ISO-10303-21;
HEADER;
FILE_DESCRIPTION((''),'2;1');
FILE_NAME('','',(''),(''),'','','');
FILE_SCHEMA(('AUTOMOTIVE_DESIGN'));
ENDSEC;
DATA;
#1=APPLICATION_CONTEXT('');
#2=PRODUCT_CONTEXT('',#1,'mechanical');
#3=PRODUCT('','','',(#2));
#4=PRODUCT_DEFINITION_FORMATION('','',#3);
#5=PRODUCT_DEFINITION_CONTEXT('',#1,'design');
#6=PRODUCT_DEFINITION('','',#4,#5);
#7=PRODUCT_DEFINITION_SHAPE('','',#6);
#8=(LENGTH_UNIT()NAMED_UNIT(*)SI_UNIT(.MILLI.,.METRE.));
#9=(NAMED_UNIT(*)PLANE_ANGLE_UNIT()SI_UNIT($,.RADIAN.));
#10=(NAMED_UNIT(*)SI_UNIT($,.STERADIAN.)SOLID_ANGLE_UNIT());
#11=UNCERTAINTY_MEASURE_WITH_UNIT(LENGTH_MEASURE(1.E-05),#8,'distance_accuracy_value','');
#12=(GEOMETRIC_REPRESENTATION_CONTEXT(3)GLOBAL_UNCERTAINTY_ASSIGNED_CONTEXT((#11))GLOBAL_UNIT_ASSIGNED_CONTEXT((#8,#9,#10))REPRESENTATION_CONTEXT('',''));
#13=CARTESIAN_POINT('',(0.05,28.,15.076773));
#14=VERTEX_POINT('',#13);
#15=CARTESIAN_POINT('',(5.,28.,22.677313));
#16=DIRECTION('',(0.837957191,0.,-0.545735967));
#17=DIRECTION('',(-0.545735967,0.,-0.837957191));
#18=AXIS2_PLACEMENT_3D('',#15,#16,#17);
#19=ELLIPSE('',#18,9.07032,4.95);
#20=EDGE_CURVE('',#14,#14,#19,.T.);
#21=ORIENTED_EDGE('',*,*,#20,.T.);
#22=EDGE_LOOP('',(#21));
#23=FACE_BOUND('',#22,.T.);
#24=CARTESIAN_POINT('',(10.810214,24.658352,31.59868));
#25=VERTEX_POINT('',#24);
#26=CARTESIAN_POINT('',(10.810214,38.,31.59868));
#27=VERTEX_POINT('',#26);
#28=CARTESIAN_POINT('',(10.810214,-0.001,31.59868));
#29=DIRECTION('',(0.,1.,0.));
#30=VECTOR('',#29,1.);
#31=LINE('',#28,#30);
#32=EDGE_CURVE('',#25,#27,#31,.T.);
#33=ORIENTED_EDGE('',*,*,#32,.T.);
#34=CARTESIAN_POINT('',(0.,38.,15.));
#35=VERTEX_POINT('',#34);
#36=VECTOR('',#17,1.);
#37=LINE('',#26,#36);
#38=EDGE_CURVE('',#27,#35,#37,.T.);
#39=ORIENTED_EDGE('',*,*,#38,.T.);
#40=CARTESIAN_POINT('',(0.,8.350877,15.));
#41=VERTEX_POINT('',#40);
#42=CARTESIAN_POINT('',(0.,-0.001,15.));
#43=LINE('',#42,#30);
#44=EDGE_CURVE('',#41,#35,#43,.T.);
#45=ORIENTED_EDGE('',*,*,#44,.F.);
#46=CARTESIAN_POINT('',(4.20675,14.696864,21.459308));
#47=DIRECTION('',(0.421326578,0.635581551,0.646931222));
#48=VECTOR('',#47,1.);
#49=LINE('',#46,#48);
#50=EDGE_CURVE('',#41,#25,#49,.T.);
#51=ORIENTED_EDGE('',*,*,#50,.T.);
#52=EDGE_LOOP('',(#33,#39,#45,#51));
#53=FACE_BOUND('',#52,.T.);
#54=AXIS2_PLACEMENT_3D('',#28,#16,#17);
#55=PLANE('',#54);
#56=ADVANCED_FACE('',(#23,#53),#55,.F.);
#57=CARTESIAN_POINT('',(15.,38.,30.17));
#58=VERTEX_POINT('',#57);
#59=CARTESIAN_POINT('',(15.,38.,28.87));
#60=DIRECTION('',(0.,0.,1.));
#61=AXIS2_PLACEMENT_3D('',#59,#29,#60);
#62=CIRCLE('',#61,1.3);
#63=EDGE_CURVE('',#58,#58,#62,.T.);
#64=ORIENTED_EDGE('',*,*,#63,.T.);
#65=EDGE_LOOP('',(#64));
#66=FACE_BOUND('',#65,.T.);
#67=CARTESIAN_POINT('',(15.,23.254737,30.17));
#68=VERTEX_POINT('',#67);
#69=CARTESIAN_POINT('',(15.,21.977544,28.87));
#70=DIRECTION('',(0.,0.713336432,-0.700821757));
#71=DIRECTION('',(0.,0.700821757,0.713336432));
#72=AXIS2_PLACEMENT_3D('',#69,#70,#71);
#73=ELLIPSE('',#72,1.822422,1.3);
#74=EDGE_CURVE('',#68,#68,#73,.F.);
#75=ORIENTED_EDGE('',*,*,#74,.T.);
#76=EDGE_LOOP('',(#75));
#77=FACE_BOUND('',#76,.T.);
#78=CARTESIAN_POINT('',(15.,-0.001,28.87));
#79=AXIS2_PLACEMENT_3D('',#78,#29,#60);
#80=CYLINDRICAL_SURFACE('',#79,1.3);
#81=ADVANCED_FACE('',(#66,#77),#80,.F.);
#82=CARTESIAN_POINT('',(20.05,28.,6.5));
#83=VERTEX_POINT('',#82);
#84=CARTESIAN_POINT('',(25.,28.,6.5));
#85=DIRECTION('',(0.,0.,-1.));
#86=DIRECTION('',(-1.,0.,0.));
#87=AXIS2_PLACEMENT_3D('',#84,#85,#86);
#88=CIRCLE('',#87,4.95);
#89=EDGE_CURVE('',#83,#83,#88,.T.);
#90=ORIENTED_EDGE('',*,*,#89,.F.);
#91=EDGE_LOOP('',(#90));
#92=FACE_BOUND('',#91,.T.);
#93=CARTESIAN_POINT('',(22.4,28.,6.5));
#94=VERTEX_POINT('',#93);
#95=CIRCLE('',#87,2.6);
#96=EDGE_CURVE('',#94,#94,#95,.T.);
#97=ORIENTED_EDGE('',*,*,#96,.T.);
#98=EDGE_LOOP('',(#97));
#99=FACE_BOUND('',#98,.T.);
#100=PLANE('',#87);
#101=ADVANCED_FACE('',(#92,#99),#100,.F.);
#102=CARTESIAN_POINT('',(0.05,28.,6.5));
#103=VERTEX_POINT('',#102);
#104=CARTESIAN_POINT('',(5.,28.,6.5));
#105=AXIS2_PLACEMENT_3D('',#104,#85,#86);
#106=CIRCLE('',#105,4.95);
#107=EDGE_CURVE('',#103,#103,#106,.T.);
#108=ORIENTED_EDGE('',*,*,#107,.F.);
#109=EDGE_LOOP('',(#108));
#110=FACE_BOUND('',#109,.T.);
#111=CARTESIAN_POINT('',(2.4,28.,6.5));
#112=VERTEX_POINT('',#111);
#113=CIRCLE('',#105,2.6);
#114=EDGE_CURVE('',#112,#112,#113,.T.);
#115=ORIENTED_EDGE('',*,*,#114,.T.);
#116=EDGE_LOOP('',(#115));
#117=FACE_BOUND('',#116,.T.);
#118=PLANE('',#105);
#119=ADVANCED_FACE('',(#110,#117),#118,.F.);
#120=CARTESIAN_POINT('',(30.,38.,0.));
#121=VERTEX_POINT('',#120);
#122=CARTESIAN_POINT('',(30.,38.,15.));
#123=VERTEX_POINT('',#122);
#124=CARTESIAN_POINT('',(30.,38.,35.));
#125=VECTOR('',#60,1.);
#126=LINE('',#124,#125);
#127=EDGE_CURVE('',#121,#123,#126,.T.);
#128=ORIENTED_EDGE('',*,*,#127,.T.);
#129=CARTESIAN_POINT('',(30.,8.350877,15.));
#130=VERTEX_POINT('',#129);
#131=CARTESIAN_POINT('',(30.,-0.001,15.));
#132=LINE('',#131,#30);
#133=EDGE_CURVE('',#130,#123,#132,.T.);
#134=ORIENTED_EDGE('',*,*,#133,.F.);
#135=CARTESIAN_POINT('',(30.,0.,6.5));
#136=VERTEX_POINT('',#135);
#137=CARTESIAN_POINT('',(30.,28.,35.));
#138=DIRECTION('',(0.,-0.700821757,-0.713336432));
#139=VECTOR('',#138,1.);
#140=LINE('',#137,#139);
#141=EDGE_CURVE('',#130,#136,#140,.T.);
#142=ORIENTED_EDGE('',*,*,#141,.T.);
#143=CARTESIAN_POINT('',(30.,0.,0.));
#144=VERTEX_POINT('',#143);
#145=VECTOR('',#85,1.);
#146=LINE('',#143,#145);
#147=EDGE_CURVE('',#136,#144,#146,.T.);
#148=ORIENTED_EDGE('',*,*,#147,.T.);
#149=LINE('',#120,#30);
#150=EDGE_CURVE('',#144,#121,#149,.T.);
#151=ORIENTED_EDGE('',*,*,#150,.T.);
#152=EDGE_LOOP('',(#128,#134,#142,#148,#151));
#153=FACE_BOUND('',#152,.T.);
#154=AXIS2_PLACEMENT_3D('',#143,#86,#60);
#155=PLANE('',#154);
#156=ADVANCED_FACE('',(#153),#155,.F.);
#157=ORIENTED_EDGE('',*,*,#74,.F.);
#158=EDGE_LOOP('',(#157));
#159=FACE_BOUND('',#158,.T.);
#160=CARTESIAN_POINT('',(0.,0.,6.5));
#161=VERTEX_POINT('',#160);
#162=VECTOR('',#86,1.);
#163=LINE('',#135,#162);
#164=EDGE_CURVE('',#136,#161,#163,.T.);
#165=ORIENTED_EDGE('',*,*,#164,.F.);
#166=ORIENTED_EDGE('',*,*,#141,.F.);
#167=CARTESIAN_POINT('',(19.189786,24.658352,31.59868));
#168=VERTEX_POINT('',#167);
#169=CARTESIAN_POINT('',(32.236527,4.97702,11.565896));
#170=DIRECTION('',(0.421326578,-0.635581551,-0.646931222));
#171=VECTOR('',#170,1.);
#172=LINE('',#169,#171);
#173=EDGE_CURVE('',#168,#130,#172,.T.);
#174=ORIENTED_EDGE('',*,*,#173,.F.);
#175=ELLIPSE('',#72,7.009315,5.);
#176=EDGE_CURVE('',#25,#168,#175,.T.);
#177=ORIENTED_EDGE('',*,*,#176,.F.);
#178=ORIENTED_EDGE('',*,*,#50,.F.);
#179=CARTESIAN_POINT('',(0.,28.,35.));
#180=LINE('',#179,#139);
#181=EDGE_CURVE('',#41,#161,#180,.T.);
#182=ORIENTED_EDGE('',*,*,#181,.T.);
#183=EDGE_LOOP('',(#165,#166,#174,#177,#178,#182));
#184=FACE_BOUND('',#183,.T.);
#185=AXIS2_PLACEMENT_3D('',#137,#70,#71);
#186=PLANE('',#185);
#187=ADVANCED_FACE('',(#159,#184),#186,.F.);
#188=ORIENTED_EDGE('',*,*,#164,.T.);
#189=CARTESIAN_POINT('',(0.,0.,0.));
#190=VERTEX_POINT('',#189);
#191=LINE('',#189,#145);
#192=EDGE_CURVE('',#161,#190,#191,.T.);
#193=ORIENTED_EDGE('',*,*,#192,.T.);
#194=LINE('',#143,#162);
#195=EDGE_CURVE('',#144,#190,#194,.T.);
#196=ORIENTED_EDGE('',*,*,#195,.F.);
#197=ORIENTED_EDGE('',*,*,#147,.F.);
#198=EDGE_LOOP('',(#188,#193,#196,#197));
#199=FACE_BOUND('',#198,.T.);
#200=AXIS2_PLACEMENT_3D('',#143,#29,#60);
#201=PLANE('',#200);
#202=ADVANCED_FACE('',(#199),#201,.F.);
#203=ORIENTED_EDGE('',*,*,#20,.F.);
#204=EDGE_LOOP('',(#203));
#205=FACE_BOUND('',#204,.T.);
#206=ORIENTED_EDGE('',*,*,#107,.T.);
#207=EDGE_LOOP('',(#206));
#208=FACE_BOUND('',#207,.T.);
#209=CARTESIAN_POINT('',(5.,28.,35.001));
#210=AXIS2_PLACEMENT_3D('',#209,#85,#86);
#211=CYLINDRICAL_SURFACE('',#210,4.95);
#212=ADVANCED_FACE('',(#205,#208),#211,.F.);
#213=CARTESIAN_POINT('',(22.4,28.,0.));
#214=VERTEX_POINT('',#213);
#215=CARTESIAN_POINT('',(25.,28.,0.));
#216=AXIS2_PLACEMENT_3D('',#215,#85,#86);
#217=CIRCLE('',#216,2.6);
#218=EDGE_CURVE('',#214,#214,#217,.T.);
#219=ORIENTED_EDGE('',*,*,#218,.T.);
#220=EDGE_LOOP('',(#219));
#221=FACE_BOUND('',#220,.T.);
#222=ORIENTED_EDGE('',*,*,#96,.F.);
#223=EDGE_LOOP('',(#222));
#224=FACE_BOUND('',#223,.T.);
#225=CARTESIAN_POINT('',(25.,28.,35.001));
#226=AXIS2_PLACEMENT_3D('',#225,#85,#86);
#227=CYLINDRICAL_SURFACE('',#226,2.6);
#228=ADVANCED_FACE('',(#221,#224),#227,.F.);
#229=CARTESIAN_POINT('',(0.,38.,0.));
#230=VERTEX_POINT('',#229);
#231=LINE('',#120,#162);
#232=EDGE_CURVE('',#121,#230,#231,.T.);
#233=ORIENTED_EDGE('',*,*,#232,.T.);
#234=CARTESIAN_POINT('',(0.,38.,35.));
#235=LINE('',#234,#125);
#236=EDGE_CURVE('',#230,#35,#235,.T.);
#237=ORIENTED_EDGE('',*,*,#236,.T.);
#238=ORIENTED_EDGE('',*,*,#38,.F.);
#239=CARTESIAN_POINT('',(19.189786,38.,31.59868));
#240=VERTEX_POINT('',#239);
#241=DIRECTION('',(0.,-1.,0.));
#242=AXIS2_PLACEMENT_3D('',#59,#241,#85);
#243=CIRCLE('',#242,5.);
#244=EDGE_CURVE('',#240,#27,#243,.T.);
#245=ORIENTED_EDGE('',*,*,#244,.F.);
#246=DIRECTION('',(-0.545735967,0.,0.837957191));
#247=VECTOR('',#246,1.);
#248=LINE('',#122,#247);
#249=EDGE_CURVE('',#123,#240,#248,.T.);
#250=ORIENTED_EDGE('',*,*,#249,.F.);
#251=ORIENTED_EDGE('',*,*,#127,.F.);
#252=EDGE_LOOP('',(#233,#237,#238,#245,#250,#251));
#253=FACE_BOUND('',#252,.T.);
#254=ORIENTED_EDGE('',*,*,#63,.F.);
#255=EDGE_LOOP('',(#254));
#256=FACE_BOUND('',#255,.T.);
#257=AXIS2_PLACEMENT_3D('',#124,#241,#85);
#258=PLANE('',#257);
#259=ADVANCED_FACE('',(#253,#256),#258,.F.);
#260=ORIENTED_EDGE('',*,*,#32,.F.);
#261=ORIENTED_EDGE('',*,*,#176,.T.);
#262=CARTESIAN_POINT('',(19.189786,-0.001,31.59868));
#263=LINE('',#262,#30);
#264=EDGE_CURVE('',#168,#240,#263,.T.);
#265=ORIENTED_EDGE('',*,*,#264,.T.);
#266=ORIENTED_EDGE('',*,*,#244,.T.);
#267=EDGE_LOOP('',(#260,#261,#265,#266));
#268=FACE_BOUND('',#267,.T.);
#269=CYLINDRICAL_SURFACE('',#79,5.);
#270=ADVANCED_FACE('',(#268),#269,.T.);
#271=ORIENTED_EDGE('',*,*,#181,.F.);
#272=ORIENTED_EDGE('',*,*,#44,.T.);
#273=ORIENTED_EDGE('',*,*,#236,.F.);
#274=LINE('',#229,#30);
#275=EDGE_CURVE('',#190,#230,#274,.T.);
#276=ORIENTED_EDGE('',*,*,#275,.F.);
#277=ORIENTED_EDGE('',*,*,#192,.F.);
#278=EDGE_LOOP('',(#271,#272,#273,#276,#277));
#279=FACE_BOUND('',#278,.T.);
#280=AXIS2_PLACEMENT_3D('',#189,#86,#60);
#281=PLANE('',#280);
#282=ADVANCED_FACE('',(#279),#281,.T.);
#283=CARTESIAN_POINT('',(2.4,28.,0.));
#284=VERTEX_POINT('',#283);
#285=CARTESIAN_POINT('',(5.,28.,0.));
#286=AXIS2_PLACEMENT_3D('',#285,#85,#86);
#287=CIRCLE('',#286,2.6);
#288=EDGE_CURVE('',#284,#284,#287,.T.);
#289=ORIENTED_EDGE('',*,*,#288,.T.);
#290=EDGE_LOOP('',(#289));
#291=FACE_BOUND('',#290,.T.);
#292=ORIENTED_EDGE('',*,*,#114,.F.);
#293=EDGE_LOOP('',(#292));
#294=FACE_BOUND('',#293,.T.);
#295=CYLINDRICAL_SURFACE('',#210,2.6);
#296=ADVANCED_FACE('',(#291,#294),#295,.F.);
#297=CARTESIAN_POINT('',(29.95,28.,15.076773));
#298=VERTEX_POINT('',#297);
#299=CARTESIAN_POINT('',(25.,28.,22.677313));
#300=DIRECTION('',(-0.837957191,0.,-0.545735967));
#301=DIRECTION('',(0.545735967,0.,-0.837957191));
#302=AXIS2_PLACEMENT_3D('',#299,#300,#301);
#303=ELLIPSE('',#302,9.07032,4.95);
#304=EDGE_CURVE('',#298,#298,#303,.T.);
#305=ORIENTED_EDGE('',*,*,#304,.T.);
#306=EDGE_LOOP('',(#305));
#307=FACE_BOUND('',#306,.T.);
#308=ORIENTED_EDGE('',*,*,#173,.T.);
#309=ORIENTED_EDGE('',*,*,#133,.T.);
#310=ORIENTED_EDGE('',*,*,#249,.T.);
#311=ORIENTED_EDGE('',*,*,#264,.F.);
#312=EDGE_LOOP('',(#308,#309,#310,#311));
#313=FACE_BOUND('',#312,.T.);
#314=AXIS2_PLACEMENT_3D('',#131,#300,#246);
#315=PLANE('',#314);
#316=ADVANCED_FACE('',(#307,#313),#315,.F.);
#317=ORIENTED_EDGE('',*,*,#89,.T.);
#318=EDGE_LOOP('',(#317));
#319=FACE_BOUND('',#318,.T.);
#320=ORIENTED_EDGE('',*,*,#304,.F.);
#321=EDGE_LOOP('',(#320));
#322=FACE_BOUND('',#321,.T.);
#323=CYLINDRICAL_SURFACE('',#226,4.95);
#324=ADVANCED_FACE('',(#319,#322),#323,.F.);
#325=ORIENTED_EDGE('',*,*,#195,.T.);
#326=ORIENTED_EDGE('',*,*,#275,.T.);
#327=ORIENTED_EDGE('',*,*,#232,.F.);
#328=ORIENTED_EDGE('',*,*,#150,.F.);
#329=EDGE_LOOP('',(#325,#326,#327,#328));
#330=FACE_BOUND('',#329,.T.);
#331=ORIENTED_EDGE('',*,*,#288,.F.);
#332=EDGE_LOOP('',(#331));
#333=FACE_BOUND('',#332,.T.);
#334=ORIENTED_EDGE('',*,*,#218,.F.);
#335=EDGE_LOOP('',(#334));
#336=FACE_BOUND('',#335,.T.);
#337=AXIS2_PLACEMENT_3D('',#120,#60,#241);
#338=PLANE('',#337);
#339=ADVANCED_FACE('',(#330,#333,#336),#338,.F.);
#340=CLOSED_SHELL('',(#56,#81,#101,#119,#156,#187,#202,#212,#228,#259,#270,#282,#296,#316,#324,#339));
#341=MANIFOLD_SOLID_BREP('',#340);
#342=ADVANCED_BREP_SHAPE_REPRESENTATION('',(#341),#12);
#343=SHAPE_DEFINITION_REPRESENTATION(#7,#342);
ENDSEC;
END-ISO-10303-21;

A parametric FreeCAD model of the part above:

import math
import FreeCAD as App
import Part
import Sketcher
Q = App.Units.Quantity

doc = App.newDocument("Part")
params = doc.addObject("Spreadsheet::Sheet", "Params")
for row, (alias, value) in enumerate([
    ("sketch1_width", "38 mm"),
    ("sketch1_width2", "10 mm"),
    ("sketch1_height", "35 mm"),
    ("sketch1_height2", "6.5 mm"),
    ("pad1_length", "30 mm"),
    ("sketch2_diameter", "5.2 mm"),
    ("sketch3_diameter", "5.2 mm"),
    ("sketch4_diameter", "9.9 mm"),
    ("pocket3_length", "28.5 mm"),
    ("sketch5_diameter", "9.9 mm"),
    ("pocket4_length", "28.5 mm"),
    ("sketch6_diameter", "2.6 mm"),
    ("sketch7_radius", "5 mm"),
    ("sketch7_width", "30 mm"),
    ("sketch7_height", "20 mm"),
    ("pocket6_length", "29.649123 mm"),
], start=1):
    params.set(f"A{row}", alias)
    params.set(f"B{row}", "=" + value)
    params.setAlias(f"B{row}", alias)

body = doc.addObject("PartDesign::Body", "Body")

# Sketch on YZ plane
sketch1 = doc.addObject("Sketcher::SketchObject", "Sketch")
body.addObject(sketch1)
sketch1.AttachmentSupport = (doc.YZ_Plane, [""])
sketch1.MapMode = "FlatFace"
sketch1.addGeometry([
    Part.LineSegment(App.Vector(0, 6, 0), App.Vector(0, 0, 0)),  # 0
    Part.LineSegment(App.Vector(0, 0, 0), App.Vector(38, 0, 0)),  # 1
    Part.LineSegment(App.Vector(38, 0, 0), App.Vector(38, 35, 0)),  # 2
    Part.LineSegment(App.Vector(38, 35, 0), App.Vector(28, 35, 0)),  # 3
    Part.LineSegment(App.Vector(28, 35, 0), App.Vector(0, 6, 0)),  # 4
], False)
sketch1.addConstraint([
    Sketcher.Constraint("Coincident", 0, 2, 1, 1),
    Sketcher.Constraint("Coincident", 1, 2, 2, 1),
    Sketcher.Constraint("Coincident", 2, 2, 3, 1),
    Sketcher.Constraint("Coincident", 3, 2, 4, 1),
    Sketcher.Constraint("Coincident", 4, 2, 0, 1),
    Sketcher.Constraint("Vertical", 0),
    Sketcher.Constraint("Horizontal", 1),
    Sketcher.Constraint("Vertical", 2),
    Sketcher.Constraint("Horizontal", 3),
    Sketcher.Constraint("Coincident", 0, 2, -1, 1),
    Sketcher.Constraint("DistanceX", 1, 1, 1, 2, Q("38 mm")),
    Sketcher.Constraint("DistanceX", 3, 2, 3, 1, Q("10 mm")),
    Sketcher.Constraint("DistanceY", 2, 1, 2, 2, Q("35 mm")),
    Sketcher.Constraint("DistanceY", 0, 2, 0, 1, Q("6.5 mm")),
])
sketch1.setExpression("Constraints[10]", "Params.sketch1_width")
sketch1.setExpression("Constraints[11]", "Params.sketch1_width2")
sketch1.setExpression("Constraints[12]", "Params.sketch1_height")
sketch1.setExpression("Constraints[13]", "Params.sketch1_height2")
pad1 = doc.addObject("PartDesign::Pad", "Pad")
body.addObject(pad1)
pad1.Profile = sketch1
pad1.setExpression("Length", "Params.pad1_length")

# Sketch on XY plane
sketch2 = doc.addObject("Sketcher::SketchObject", "Sketch001")
body.addObject(sketch2)
sketch2.AttachmentSupport = (doc.XY_Plane, [""])
sketch2.MapMode = "FlatFace"
sketch2.addGeometry(Part.Circle(App.Vector(25, 28, 0), App.Vector(0, 0, 1), 2.6), False)
sketch2.addConstraint([
    Sketcher.Constraint("Diameter", 0, Q("5.2 mm")),
    Sketcher.Constraint("DistanceX", -1, 1, 0, 3, Q("25 mm")),
    Sketcher.Constraint("DistanceY", -1, 1, 0, 3, Q("28 mm")),
])
sketch2.setExpression("Constraints[0]", "Params.sketch2_diameter")
pocket1 = doc.addObject("PartDesign::Pocket", "Pocket")
body.addObject(pocket1)
pocket1.Profile = sketch2
pocket1.Type = "UpToFirst"
pocket1.Reversed = True

# Sketch on XY plane
sketch3 = doc.addObject("Sketcher::SketchObject", "Sketch002")
body.addObject(sketch3)
sketch3.AttachmentSupport = (doc.XY_Plane, [""])
sketch3.MapMode = "FlatFace"
sketch3.addGeometry(Part.Circle(App.Vector(5, 28, 0), App.Vector(0, 0, 1), 2.6), False)
sketch3.addConstraint([
    Sketcher.Constraint("Diameter", 0, Q("5.2 mm")),
    Sketcher.Constraint("DistanceX", -1, 1, 0, 3, Q("5 mm")),
    Sketcher.Constraint("DistanceY", -1, 1, 0, 3, Q("28 mm")),
])
sketch3.setExpression("Constraints[0]", "Params.sketch3_diameter")
pocket2 = doc.addObject("PartDesign::Pocket", "Pocket001")
body.addObject(pocket2)
pocket2.Profile = sketch3
pocket2.Type = "UpToFirst"
pocket2.Reversed = True

# Sketch on XY plane
sketch4 = doc.addObject("Sketcher::SketchObject", "Sketch003")
body.addObject(sketch4)
sketch4.AttachmentSupport = (doc.XY_Plane, [""])
sketch4.MapMode = "FlatFace"
sketch4.AttachmentOffset = App.Placement(App.Vector(0, 0, 6.5), App.Rotation())
sketch4.addGeometry(Part.Circle(App.Vector(25, 28, 0), App.Vector(0, 0, 1), 5), False)
sketch4.addConstraint([
    Sketcher.Constraint("Diameter", 0, Q("9.9 mm")),
    Sketcher.Constraint("DistanceX", -1, 1, 0, 3, Q("25 mm")),
    Sketcher.Constraint("DistanceY", -1, 1, 0, 3, Q("28 mm")),
])
sketch4.setExpression("Constraints[0]", "Params.sketch4_diameter")
pocket3 = doc.addObject("PartDesign::Pocket", "Pocket002")
body.addObject(pocket3)
pocket3.Profile = sketch4
pocket3.setExpression("Length", "Params.pocket3_length")
pocket3.Reversed = True

# Sketch on XY plane
sketch5 = doc.addObject("Sketcher::SketchObject", "Sketch004")
body.addObject(sketch5)
sketch5.AttachmentSupport = (doc.XY_Plane, [""])
sketch5.MapMode = "FlatFace"
sketch5.AttachmentOffset = App.Placement(App.Vector(0, 0, 6.5), App.Rotation())
sketch5.addGeometry(Part.Circle(App.Vector(5, 28, 0), App.Vector(0, 0, 1), 5), False)
sketch5.addConstraint([
    Sketcher.Constraint("Diameter", 0, Q("9.9 mm")),
    Sketcher.Constraint("DistanceX", -1, 1, 0, 3, Q("5 mm")),
    Sketcher.Constraint("DistanceY", -1, 1, 0, 3, Q("28 mm")),
])
sketch5.setExpression("Constraints[0]", "Params.sketch5_diameter")
pocket4 = doc.addObject("PartDesign::Pocket", "Pocket003")
body.addObject(pocket4)
pocket4.Profile = sketch5
pocket4.setExpression("Length", "Params.pocket4_length")
pocket4.Reversed = True

# Sketch on XZ plane
sketch6 = doc.addObject("Sketcher::SketchObject", "Sketch005")
body.addObject(sketch6)
sketch6.AttachmentSupport = (doc.XZ_Plane, [""])
sketch6.MapMode = "FlatFace"
sketch6.AttachmentOffset = App.Placement(App.Vector(0, 0, -38), App.Rotation())
sketch6.addGeometry(Part.Circle(App.Vector(15, 28.9, 0), App.Vector(0, 0, 1), 1.3), False)
sketch6.addConstraint([
    Sketcher.Constraint("Diameter", 0, Q("2.6 mm")),
    Sketcher.Constraint("DistanceX", -1, 1, 0, 3, Q("15 mm")),
    Sketcher.Constraint("DistanceY", -1, 1, 0, 3, Q("28.87 mm")),
])
sketch6.setExpression("Constraints[0]", "Params.sketch6_diameter")
pocket5 = doc.addObject("PartDesign::Pocket", "Pocket004")
body.addObject(pocket5)
pocket5.Profile = sketch6
pocket5.Type = "UpToFirst"
pocket5.Reversed = True

# Sketch on XZ plane
sketch7 = doc.addObject("Sketcher::SketchObject", "Sketch006")
body.addObject(sketch7)
sketch7.AttachmentSupport = (doc.XZ_Plane, [""])
sketch7.MapMode = "FlatFace"
sketch7.AttachmentOffset = App.Placement(App.Vector(0, 0, -38), App.Rotation())
sketch7.addGeometry([
    Part.LineSegment(App.Vector(0, 35, 0), App.Vector(30, 35, 0)),  # 0
    Part.LineSegment(App.Vector(30, 35, 0), App.Vector(30, 15, 0)),  # 1
    Part.LineSegment(App.Vector(30, 15, 0), App.Vector(19.2, 31.6, 0)),  # 2
    Part.ArcOfCircle(Part.Circle(App.Vector(15, 28.9, 0), App.Vector(0, 0, 1), 5), math.radians(33), math.radians(147)),  # 3
    Part.LineSegment(App.Vector(10.8, 31.6, 0), App.Vector(0, 15, 0)),  # 4
    Part.LineSegment(App.Vector(0, 15, 0), App.Vector(0, 35, 0)),  # 5
], False)
sketch7.addConstraint([
    Sketcher.Constraint("Coincident", 0, 2, 1, 1),
    Sketcher.Constraint("Coincident", 1, 2, 2, 1),
    Sketcher.Constraint("Tangent", 2, 2, 3, 1),
    Sketcher.Constraint("Tangent", 3, 2, 4, 1),
    Sketcher.Constraint("Coincident", 4, 2, 5, 1),
    Sketcher.Constraint("Coincident", 5, 2, 0, 1),
    Sketcher.Constraint("Horizontal", 0),
    Sketcher.Constraint("Vertical", 1),
    Sketcher.Constraint("Vertical", 5),
    Sketcher.Constraint("PointOnObject", 4, 2, -2),
    Sketcher.Constraint("Horizontal", 2, 2, 3, 2),
    Sketcher.Constraint("Horizontal", 1, 2, 4, 2),
    Sketcher.Constraint("Radius", 3, Q("5 mm")),
    Sketcher.Constraint("DistanceX", 0, 1, 0, 2, Q("30 mm")),
    Sketcher.Constraint("DistanceY", 1, 2, 1, 1, Q("20 mm")),
    Sketcher.Constraint("DistanceY", -1, 1, 0, 2, Q("35 mm")),
    Sketcher.Constraint("DistanceY", -1, 1, 3, 3, Q("28.87 mm")),
])
sketch7.setExpression("Constraints[12]", "Params.sketch7_radius")
sketch7.setExpression("Constraints[13]", "Params.sketch7_width")
sketch7.setExpression("Constraints[14]", "Params.sketch7_height")
pocket6 = doc.addObject("PartDesign::Pocket", "Pocket005")
body.addObject(pocket6)
pocket6.Profile = sketch7
pocket6.setExpression("Length", "Params.pocket6_length")
pocket6.Reversed = True

doc.recompute()
